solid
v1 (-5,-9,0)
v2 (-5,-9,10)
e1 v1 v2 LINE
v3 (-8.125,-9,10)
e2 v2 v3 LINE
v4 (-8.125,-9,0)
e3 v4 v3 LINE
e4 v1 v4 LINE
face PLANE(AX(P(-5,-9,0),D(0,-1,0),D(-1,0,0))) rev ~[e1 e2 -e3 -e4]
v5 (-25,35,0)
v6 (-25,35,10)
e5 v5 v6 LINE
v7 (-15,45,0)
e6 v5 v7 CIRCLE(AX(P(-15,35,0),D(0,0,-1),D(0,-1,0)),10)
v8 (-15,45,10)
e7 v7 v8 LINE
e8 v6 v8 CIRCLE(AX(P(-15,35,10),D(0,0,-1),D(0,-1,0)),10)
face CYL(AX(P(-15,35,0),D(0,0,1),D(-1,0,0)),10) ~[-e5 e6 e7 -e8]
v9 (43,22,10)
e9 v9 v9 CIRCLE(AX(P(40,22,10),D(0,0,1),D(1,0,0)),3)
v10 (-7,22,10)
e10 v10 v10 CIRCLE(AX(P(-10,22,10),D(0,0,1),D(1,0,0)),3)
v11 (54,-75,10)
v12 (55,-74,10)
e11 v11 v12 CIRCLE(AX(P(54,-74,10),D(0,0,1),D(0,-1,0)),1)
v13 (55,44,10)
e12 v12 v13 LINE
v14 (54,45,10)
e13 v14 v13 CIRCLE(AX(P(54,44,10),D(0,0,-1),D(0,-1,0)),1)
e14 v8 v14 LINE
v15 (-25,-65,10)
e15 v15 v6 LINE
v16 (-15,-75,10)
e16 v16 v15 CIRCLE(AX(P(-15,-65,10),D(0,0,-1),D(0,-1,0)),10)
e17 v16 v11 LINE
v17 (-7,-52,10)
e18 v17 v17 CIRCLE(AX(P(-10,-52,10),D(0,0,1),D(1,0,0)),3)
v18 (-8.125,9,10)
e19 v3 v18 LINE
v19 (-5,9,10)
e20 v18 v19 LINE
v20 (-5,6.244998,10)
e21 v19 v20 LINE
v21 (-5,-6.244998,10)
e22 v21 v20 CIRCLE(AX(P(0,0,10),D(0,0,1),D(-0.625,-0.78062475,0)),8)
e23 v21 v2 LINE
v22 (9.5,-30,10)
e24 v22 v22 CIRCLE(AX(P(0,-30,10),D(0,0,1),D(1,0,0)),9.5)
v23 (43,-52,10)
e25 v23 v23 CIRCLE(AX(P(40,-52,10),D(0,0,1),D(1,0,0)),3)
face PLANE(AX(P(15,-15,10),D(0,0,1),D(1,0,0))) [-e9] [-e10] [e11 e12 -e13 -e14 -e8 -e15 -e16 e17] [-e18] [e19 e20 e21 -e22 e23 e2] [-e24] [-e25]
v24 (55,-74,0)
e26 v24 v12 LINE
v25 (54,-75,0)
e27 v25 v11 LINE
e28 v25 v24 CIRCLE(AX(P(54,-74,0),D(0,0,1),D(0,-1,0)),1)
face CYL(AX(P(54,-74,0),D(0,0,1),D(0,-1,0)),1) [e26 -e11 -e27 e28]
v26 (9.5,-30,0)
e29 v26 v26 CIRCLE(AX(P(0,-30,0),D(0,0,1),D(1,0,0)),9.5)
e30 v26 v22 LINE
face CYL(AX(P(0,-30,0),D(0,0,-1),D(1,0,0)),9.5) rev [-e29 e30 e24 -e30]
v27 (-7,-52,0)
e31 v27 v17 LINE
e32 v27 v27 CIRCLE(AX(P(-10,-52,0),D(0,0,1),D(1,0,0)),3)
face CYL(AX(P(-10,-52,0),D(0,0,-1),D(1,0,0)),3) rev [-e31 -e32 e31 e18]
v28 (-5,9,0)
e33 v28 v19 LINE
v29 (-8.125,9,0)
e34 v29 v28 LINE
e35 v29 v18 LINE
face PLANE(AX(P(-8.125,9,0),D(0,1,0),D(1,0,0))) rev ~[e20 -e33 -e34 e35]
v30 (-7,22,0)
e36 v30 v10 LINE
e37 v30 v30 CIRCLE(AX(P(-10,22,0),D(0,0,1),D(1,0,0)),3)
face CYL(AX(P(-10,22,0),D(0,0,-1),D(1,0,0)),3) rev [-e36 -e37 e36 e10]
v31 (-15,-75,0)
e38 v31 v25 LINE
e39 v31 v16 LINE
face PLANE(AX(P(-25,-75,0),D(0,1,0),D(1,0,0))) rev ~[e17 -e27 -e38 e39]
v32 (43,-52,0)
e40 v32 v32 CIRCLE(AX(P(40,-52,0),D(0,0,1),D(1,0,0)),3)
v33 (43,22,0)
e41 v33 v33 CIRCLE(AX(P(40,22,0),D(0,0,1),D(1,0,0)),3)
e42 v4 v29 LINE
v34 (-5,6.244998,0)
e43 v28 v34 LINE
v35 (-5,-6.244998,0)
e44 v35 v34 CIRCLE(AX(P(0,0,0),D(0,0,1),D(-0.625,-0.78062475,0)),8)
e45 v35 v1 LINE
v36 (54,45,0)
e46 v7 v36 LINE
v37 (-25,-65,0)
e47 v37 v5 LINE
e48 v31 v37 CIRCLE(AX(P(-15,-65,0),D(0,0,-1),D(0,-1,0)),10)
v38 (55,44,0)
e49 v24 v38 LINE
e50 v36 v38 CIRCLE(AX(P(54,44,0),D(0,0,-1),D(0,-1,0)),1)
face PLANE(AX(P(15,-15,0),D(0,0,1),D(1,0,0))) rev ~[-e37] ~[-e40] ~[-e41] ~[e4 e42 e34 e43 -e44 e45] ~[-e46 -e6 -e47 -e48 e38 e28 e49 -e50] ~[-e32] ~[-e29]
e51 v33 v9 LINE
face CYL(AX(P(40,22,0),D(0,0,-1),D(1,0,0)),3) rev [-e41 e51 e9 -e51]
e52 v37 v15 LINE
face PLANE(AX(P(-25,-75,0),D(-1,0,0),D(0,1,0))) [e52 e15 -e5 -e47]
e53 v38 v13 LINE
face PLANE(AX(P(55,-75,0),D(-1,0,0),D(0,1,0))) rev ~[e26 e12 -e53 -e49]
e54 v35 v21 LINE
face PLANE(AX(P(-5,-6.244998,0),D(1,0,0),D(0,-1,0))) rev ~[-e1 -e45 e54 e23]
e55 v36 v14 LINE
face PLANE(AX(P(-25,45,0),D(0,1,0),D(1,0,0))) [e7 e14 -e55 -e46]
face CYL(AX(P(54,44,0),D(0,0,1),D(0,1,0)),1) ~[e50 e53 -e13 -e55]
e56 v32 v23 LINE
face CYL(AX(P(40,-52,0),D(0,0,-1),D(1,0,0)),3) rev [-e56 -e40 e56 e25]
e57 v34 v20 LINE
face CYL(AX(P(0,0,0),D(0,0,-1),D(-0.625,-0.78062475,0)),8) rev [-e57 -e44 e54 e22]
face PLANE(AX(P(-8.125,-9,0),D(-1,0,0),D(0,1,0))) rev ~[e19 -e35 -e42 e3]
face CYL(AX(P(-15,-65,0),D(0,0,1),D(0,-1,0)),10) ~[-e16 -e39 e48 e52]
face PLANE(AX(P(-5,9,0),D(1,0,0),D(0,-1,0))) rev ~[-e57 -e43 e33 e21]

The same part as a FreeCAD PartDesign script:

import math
import FreeCAD as App
import Part
import Sketcher


def edges_at(feature, points):
    """Names of the edges that pass closest to the given points."""
    edges = feature.Shape.Edges
    near = lambda p: min(range(len(edges)), key=lambda i: edges[i].distToShape(Part.Vertex(*p))[0])
    return sorted({f"Edge{near(p) + 1}" for p in points})


def add_polygon(sketch, points):
    """Adds a closed chain of lines whose ends are joined by coincident constraints."""
    first, n = sketch.GeometryCount, len(points)
    for a, b in zip(points, points[1:] + points[:1]):
        sketch.addGeometry(Part.LineSegment(App.Vector(*a, 0), App.Vector(*b, 0)), False)
    for i in range(n):
        sketch.addConstraint(Sketcher.Constraint("Coincident", first + i, 2, first + (i + 1) % n, 1))

doc = App.newDocument("Part")
body = doc.addObject("PartDesign::Body", "Body")

sketch1 = body.newObject("Sketcher::SketchObject", "Sketch")
sketch1.AttachmentSupport = (doc.getObject("XY_Plane"), [""])
sketch1.MapMode = "FlatFace"
add_polygon(sketch1, [(-25, 45), (-25, -75), (55, -75), (55, 45)])
sketch1.addGeometry(Part.Circle(App.Vector(-10, -52, 0), App.Vector(0, 0, 1), 3), False)
sketch1.addGeometry(Part.Circle(App.Vector(0, -30, 0), App.Vector(0, 0, 1), 9.5), False)
sketch1.addGeometry(Part.Circle(App.Vector(40, -52, 0), App.Vector(0, 0, 1), 3), False)
sketch1.addGeometry(Part.ArcOfCircle(Part.Circle(App.Vector(0, 0, 0), App.Vector(0, 0, 1), 8), math.radians(-129), math.radians(129)), False)
sketch1.addGeometry(Part.LineSegment(App.Vector(-5, -6.2, 0), App.Vector(-5, -9, 0)), False)
sketch1.addGeometry(Part.LineSegment(App.Vector(-5, -9, 0), App.Vector(-8.1, -9, 0)), False)
sketch1.addGeometry(Part.LineSegment(App.Vector(-8.1, -9, 0), App.Vector(-8.1, 9, 0)), False)
sketch1.addGeometry(Part.LineSegment(App.Vector(-8.1, 9, 0), App.Vector(-5, 9, 0)), False)
sketch1.addGeometry(Part.LineSegment(App.Vector(-5, 9, 0), App.Vector(-5, 6.2, 0)), False)
sketch1.addGeometry(Part.Circle(App.Vector(-10, 22, 0), App.Vector(0, 0, 1), 3), False)
sketch1.addGeometry(Part.Circle(App.Vector(40, 22, 0), App.Vector(0, 0, 1), 3), False)
sketch1.addConstraint(Sketcher.Constraint("Coincident", 7, 1, 8, 1))
sketch1.addConstraint(Sketcher.Constraint("Coincident", 8, 2, 9, 1))
sketch1.addConstraint(Sketcher.Constraint("Coincident", 9, 2, 10, 1))
sketch1.addConstraint(Sketcher.Constraint("Coincident", 10, 2, 11, 1))
sketch1.addConstraint(Sketcher.Constraint("Coincident", 11, 2, 12, 1))
sketch1.addConstraint(Sketcher.Constraint("Coincident", 12, 2, 7, 2))
sketch1.addConstraint(Sketcher.Constraint("Vertical", 0))
sketch1.addConstraint(Sketcher.Constraint("Horizontal", 1))
sketch1.addConstraint(Sketcher.Constraint("Vertical", 2))
sketch1.addConstraint(Sketcher.Constraint("Horizontal", 3))
sketch1.addConstraint(Sketcher.Constraint("Vertical", 8))
sketch1.addConstraint(Sketcher.Constraint("Horizontal", 9))
sketch1.addConstraint(Sketcher.Constraint("Vertical", 10))
sketch1.addConstraint(Sketcher.Constraint("Horizontal", 11))
sketch1.addConstraint(Sketcher.Constraint("Vertical", 12))
sketch1.addConstraint(Sketcher.Constraint("Coincident", 7, 3, -1, 1))
sketch1.addConstraint(Sketcher.Constraint("Equal", 4, 6))
sketch1.addConstraint(Sketcher.Constraint("Equal", 6, 13))
sketch1.addConstraint(Sketcher.Constraint("Equal", 13, 14))
sketch1.addConstraint(Sketcher.Constraint("Symmetric", 8, 2, 11, 2, -1))
sketch1.addConstraint(Sketcher.Constraint("PointOnObject", 5, 3, -2))
sketch1.addConstraint(Sketcher.Constraint("Horizontal", 4, 3, 6, 3))
sketch1.addConstraint(Sketcher.Constraint("Horizontal", 13, 3, 14, 3))
sketch1.addConstraint(Sketcher.Constraint("Vertical", 4, 3, 13, 3))
sketch1.addConstraint(Sketcher.Constraint("Vertical", 6, 3, 14, 3))
sketch1.addConstraint(Sketcher.Constraint("Diameter", 4, 6.0))
sketch1.addConstraint(Sketcher.Constraint("Diameter", 5, 19.0))
sketch1.addConstraint(Sketcher.Constraint("Radius", 7, 8.0))
sketch1.addConstraint(Sketcher.Constraint("DistanceX", 1, 1, 1, 2, 80.0))
sketch1.addConstraint(Sketcher.Constraint("DistanceY", 0, 2, 0, 1, 120.0))
sketch1.addConstraint(Sketcher.Constraint("DistanceY", 10, 1, 10, 2, 18.0))
sketch1.addConstraint(Sketcher.Constraint("DistanceX", 4, 3, -1, 1, 10.0))
sketch1.addConstraint(Sketcher.Constraint("DistanceY", 4, 3, -1, 1, 52.0))
sketch1.addConstraint(Sketcher.Constraint("DistanceY", 5, 3, -1, 1, 30.0))
sketch1.addConstraint(Sketcher.Constraint("DistanceX", -1, 1, 6, 3, 40.0))
sketch1.addConstraint(Sketcher.Constraint("DistanceY", -1, 1, 13, 3, 22.0))
sketch1.addConstraint(Sketcher.Constraint("DistanceX", 0, 2, -1, 1, 25.0))
sketch1.addConstraint(Sketcher.Constraint("DistanceY", 0, 2, -1, 1, 75.0))
sketch1.addConstraint(Sketcher.Constraint("DistanceX", 7, 1, -1, 1, 5.0))
sketch1.addConstraint(Sketcher.Constraint("DistanceX", 9, 2, 9, 1, 3.125))
pad1 = body.newObject("PartDesign::Pad", "Pad")
pad1.Profile = sketch1
pad1.Length = 10
doc.recompute()

fillet = body.newObject("PartDesign::Fillet", "Fillet")
fillet.Base = (pad1, edges_at(pad1, [(55, -75, 5), (55, 45, 5)]))
fillet.Radius = 1
doc.recompute()

fillet2 = body.newObject("PartDesign::Fillet", "Fillet001")
fillet2.Base = (fillet, edges_at(fillet, [(-25, -75, 5), (-25, 45, 5)]))
fillet2.Radius = 10

doc.recompute()
